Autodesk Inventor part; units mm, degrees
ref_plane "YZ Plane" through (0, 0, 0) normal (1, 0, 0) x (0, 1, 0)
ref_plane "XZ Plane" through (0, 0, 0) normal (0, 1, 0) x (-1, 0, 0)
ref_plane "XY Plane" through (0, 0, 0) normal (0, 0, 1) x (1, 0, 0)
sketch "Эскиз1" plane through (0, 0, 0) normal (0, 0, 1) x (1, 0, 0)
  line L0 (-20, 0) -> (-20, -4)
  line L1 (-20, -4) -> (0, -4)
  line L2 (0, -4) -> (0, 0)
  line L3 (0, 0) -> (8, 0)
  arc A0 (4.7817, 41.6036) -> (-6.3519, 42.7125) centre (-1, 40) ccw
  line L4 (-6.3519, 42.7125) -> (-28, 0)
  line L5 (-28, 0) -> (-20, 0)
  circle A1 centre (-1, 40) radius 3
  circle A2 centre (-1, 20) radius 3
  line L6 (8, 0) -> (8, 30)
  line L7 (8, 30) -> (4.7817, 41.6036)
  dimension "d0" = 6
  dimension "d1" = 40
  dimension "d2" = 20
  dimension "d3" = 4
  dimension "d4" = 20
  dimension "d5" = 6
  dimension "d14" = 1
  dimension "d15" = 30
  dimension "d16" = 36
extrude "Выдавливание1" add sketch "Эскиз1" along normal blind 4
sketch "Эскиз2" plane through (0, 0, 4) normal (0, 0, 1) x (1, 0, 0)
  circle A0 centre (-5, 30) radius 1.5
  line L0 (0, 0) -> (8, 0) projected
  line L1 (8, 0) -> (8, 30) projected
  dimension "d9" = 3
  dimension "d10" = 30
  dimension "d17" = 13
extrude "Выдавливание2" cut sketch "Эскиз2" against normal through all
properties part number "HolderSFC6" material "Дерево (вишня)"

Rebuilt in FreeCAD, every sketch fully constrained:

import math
import FreeCAD as App
import Part
import Sketcher

V = App.Vector

doc = App.newDocument("Part")
body = doc.addObject("PartDesign::Body", "Body")

# Sketch on XY plane
sketch1 = doc.addObject("Sketcher::SketchObject", "Sketch")
body.addObject(sketch1)
sketch1.AttachmentSupport = (doc.XY_Plane, [""])
sketch1.MapMode = "FlatFace"
sketch1.addGeometry([
    Part.LineSegment(V(-28, 0, 0), V(-20, 0, 0)),  # 0
    Part.LineSegment(V(-20, 0, 0), V(-20, -4, 0)),  # 1
    Part.LineSegment(V(-20, -4, 0), V(0, -4, 0)),  # 2
    Part.LineSegment(V(0, -4, 0), V(0, 0, 0)),  # 3
    Part.LineSegment(V(0, 0, 0), V(8, 0, 0)),  # 4
    Part.LineSegment(V(8, 0, 0), V(8, 30, 0)),  # 5
    Part.LineSegment(V(8, 30, 0), V(4.7817, 41.6036, 0)),  # 6
    Part.ArcOfCircle(Part.Circle(V(-1, 40, 0), V(0, 0, 1), 5.999966), math.radians(15.501773), math.radians(153.12277)),  # 7
    Part.LineSegment(V(-6.3519, 42.7125, 0), V(-28, 0, 0)),  # 8
    Part.Circle(V(-1, 20, 0), V(0, 0, 1), 3),  # 9
    Part.Circle(V(-1, 40, 0), V(0, 0, 1), 3),  # 10
], False)
sketch1.addConstraint([
    Sketcher.Constraint("Coincident", 0, 2, 1, 1),
    Sketcher.Constraint("Coincident", 1, 2, 2, 1),
    Sketcher.Constraint("Coincident", 2, 2, 3, 1),
    Sketcher.Constraint("Coincident", 3, 2, 4, 1),
    Sketcher.Constraint("Coincident", 4, 2, 5, 1),
    Sketcher.Constraint("Coincident", 5, 2, 6, 1),
    Sketcher.Constraint("Tangent", 6, 2, 7, 1),
    Sketcher.Constraint("Tangent", 7, 2, 8, 1),
    Sketcher.Constraint("Coincident", 8, 2, 0, 1),
    Sketcher.Constraint("Horizontal", 0),
    Sketcher.Constraint("Vertical", 1),
    Sketcher.Constraint("Horizontal", 2),
    Sketcher.Constraint("Vertical", 3),
    Sketcher.Constraint("Horizontal", 4),
    Sketcher.Constraint("Vertical", 5),
    Sketcher.Constraint("Coincident", 3, 2, -1, 1),
    Sketcher.Constraint("Coincident", 10, 3, 7, 3),
    Sketcher.Constraint("Equal", 9, 10),
    Sketcher.Constraint("PointOnObject", 0, 2, -1),
    Sketcher.Constraint("Vertical", 7, 3, 9, 3),
    Sketcher.Constraint("Equal", 0, 4),
    Sketcher.Constraint("Diameter", 9, 6.0),
    Sketcher.Constraint("Radius", 7, 6.0),
    Sketcher.Constraint("DistanceX", 2, 1, 2, 2, 20.0),
    Sketcher.Constraint("DistanceY", 1, 2, 1, 1, 4.0),
    Sketcher.Constraint("DistanceY", 5, 1, 5, 2, 30.0),
    Sketcher.Constraint("DistanceX", 7, 3, -1, 1, 1.0),
    Sketcher.Constraint("DistanceY", -1, 1, 7, 3, 40.0),
    Sketcher.Constraint("DistanceY", -1, 1, 9, 3, 20.0),
    Sketcher.Constraint("DistanceX", 0, 1, 0, 2, 8.0),
])
pad1 = doc.addObject("PartDesign::Pad", "Pad")
body.addObject(pad1)
pad1.Profile = sketch1
pad1.Length = 4

# Sketch on XY plane
sketch2 = doc.addObject("Sketcher::SketchObject", "Sketch001")
body.addObject(sketch2)
sketch2.AttachmentSupport = (doc.XY_Plane, [""])
sketch2.MapMode = "FlatFace"
sketch2.AttachmentOffset = App.Placement(V(0, 0, 4), App.Rotation())
sketch2.addGeometry(Part.Circle(V(-5, 30, 0), V(0, 0, 1), 1.5), False)
sketch2.addConstraint([
    Sketcher.Constraint("Diameter", 0, 3.0),
    Sketcher.Constraint("DistanceY", -1, 1, 0, 3, 30.0),
    Sketcher.Constraint("DistanceX", 0, 3, -1, 1, 5.0),
])
pocket1 = doc.addObject("PartDesign::Pocket", "Pocket")
body.addObject(pocket1)
pocket1.Profile = sketch2
pocket1.Type = "ThroughAll"

doc.recompute()
